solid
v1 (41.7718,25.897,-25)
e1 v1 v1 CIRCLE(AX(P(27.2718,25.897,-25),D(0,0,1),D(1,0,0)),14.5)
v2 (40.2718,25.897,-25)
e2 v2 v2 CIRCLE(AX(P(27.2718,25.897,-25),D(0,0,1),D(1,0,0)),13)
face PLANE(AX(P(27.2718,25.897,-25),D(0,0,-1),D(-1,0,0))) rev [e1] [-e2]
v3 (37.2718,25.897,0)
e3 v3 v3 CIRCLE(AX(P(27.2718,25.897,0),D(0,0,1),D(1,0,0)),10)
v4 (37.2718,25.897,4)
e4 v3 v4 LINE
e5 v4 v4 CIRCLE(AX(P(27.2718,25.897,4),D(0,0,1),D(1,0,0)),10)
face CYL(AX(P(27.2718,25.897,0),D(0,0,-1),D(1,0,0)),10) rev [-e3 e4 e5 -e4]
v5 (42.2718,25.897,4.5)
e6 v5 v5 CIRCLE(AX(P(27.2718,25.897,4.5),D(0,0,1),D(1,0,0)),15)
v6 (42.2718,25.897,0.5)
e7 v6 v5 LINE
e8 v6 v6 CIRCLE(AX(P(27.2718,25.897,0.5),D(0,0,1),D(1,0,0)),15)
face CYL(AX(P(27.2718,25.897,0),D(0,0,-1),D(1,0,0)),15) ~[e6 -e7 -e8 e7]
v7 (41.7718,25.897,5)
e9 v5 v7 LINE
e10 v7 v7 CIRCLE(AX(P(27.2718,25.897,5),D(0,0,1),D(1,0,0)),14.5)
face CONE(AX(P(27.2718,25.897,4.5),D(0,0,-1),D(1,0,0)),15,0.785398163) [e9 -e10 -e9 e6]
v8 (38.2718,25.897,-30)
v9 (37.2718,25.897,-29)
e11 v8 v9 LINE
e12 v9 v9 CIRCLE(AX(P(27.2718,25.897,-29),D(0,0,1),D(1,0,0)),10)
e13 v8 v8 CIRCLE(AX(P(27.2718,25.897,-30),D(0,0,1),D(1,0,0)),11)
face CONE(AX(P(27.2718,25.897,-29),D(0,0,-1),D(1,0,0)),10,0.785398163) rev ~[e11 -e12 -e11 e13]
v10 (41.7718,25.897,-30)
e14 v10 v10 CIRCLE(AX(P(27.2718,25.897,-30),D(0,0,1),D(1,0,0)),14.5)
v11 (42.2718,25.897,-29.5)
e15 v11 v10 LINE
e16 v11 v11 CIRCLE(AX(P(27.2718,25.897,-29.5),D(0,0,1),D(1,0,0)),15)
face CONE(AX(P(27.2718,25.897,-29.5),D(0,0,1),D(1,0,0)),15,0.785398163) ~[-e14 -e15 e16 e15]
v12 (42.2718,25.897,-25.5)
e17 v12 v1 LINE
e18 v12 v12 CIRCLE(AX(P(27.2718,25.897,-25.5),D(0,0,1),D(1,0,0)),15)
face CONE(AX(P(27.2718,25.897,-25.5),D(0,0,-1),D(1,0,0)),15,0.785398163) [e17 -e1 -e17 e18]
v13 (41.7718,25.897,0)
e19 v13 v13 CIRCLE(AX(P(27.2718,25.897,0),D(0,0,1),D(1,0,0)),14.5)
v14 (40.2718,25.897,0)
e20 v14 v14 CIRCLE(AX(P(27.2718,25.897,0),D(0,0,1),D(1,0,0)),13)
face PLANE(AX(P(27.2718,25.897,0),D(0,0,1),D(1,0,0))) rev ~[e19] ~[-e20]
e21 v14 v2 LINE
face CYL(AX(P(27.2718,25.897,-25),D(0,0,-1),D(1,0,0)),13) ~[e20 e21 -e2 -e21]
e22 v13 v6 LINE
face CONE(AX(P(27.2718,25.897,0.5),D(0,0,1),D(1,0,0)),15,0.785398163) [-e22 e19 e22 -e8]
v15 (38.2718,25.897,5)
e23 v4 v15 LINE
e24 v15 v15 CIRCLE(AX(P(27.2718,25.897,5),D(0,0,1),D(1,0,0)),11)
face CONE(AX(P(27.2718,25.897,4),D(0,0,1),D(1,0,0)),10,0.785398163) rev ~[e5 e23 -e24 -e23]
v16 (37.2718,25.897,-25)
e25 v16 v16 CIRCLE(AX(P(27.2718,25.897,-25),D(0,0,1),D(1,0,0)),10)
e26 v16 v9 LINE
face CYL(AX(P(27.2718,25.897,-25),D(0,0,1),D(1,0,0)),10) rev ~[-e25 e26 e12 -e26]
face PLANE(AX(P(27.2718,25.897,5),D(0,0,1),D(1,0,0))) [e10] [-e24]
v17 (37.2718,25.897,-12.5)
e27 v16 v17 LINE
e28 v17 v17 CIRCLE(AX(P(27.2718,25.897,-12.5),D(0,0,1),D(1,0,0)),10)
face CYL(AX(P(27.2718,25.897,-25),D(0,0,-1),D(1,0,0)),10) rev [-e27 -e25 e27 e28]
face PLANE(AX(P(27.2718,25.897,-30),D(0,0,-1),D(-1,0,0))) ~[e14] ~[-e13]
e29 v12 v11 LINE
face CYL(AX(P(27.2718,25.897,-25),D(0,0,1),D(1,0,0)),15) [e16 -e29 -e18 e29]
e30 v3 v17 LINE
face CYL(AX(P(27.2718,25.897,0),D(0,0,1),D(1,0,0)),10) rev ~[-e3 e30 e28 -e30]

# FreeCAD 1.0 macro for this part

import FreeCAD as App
import Part
import Sketcher

V = App.Vector


def edges_at(feature, points):
    """Names of the edges that pass closest to the given points."""
    edges = feature.Shape.Edges
    near = lambda p: min(range(len(edges)), key=lambda i: edges[i].distToShape(Part.Vertex(*p))[0])
    return sorted({f"Edge{near(p) + 1}" for p in points})

doc = App.newDocument("Part")
params = doc.addObject("Spreadsheet::Sheet", "Params")
for row, (alias, value) in enumerate([
    ("sketch1_diameter", "20 mm"),
    ("sketch1_diameter2", "26 mm"),
    ("pad1_length", "12.5 mm"),
    ("sketch2_diameter", "30 mm"),
    ("sketch2_diameter2", "20 mm"),
    ("pad2_length", "5 mm"),
    ("chamfer_size", "0.5 mm"),
    ("chamfer2_size", "1 mm"),
], start=1):
    params.set(f"A{row}", alias)
    params.set(f"B{row}", "=" + value)
    params.setAlias(f"B{row}", alias)

body = doc.addObject("PartDesign::Body", "Body")

sketch1 = body.newObject("Sketcher::SketchObject", "Sketch")
sketch1.AttachmentSupport = (doc.getObject("XY_Plane"), [""])
sketch1.MapMode = "FlatFace"
sketch1.addGeometry([
    Part.Circle(V(27, 26, 0), V(0, 0, 1), 13),
    Part.Circle(V(27, 26, 0), V(0, 0, 1), 10),
], False)
sketch1.addConstraint([
    Sketcher.Constraint("Coincident", 1, 3, 0, 3),
    Sketcher.Constraint("Diameter", 1, 20.0),
    Sketcher.Constraint("Diameter", 0, 26.0),
    Sketcher.Constraint("DistanceY", -1, 1, 0, 3, 25.897),
    Sketcher.Constraint("DistanceX", -1, 1, 0, 3, 27.2718),
])
sketch1.setExpression("Constraints[1]", "Params.sketch1_diameter")
sketch1.setExpression("Constraints[2]", "Params.sketch1_diameter2")
pad1 = body.newObject("PartDesign::Pad", "Pad")
pad1.Profile = sketch1
pad1.setExpression("Length", "Params.pad1_length")
pad1.Reversed = True

sketch2 = body.newObject("Sketcher::SketchObject", "Sketch001")
sketch2.AttachmentSupport = (doc.getObject("XY_Plane"), [""])
sketch2.MapMode = "FlatFace"
sketch2.addGeometry([
    Part.Circle(V(27, 26, 0), V(0, 0, 1), 15),
    Part.Circle(V(27, 26, 0), V(0, 0, 1), 10),
], False)
sketch2.addConstraint([
    Sketcher.Constraint("Coincident", 1, 3, 0, 3),
    Sketcher.Constraint("Diameter", 0, 30.0),
    Sketcher.Constraint("Diameter", 1, 20.0),
    Sketcher.Constraint("DistanceY", -1, 1, 0, 3, 25.897),
    Sketcher.Constraint("DistanceX", -1, 1, 0, 3, 27.2718),
])
sketch2.setExpression("Constraints[1]", "Params.sketch2_diameter")
sketch2.setExpression("Constraints[2]", "Params.sketch2_diameter2")
pad2 = body.newObject("PartDesign::Pad", "Pad001")
pad2.Profile = sketch2
pad2.setExpression("Length", "Params.pad2_length")
doc.recompute()

datumplane = body.newObject("PartDesign::Plane", "DatumPlane")
datumplane.AttachmentSupport = (doc.getObject("XY_Plane"), [""])
datumplane.MapMode = "FlatFace"
datumplane.AttachmentOffset = App.Placement(V(0, 0, -12.5), App.Rotation())
mirrored = body.newObject("PartDesign::Mirrored", "Mirrored")
mirrored.Originals = [pad1, pad2]
mirrored.MirrorPlane = (datumplane, [""])
body.Tip = mirrored
doc.recompute()

chamfer = body.newObject("PartDesign::Chamfer", "Chamfer")
chamfer.Base = (mirrored, edges_at(mirrored, [
    (12.272, 25.897, -30),
    (12.272, 25.897, 5),
    (12.272, 25.897, 0),
    (12.272, 25.897, -25),
]))
chamfer.setExpression("Size", "Params.chamfer_size")
doc.recompute()

chamfer2 = body.newObject("PartDesign::Chamfer", "Chamfer001")
chamfer2.Base = (chamfer, edges_at(chamfer, [(17.272, 25.897, 5), (17.272, 25.897, -30)]))
chamfer2.setExpression("Size", "Params.chamfer2_size")

doc.recompute()
